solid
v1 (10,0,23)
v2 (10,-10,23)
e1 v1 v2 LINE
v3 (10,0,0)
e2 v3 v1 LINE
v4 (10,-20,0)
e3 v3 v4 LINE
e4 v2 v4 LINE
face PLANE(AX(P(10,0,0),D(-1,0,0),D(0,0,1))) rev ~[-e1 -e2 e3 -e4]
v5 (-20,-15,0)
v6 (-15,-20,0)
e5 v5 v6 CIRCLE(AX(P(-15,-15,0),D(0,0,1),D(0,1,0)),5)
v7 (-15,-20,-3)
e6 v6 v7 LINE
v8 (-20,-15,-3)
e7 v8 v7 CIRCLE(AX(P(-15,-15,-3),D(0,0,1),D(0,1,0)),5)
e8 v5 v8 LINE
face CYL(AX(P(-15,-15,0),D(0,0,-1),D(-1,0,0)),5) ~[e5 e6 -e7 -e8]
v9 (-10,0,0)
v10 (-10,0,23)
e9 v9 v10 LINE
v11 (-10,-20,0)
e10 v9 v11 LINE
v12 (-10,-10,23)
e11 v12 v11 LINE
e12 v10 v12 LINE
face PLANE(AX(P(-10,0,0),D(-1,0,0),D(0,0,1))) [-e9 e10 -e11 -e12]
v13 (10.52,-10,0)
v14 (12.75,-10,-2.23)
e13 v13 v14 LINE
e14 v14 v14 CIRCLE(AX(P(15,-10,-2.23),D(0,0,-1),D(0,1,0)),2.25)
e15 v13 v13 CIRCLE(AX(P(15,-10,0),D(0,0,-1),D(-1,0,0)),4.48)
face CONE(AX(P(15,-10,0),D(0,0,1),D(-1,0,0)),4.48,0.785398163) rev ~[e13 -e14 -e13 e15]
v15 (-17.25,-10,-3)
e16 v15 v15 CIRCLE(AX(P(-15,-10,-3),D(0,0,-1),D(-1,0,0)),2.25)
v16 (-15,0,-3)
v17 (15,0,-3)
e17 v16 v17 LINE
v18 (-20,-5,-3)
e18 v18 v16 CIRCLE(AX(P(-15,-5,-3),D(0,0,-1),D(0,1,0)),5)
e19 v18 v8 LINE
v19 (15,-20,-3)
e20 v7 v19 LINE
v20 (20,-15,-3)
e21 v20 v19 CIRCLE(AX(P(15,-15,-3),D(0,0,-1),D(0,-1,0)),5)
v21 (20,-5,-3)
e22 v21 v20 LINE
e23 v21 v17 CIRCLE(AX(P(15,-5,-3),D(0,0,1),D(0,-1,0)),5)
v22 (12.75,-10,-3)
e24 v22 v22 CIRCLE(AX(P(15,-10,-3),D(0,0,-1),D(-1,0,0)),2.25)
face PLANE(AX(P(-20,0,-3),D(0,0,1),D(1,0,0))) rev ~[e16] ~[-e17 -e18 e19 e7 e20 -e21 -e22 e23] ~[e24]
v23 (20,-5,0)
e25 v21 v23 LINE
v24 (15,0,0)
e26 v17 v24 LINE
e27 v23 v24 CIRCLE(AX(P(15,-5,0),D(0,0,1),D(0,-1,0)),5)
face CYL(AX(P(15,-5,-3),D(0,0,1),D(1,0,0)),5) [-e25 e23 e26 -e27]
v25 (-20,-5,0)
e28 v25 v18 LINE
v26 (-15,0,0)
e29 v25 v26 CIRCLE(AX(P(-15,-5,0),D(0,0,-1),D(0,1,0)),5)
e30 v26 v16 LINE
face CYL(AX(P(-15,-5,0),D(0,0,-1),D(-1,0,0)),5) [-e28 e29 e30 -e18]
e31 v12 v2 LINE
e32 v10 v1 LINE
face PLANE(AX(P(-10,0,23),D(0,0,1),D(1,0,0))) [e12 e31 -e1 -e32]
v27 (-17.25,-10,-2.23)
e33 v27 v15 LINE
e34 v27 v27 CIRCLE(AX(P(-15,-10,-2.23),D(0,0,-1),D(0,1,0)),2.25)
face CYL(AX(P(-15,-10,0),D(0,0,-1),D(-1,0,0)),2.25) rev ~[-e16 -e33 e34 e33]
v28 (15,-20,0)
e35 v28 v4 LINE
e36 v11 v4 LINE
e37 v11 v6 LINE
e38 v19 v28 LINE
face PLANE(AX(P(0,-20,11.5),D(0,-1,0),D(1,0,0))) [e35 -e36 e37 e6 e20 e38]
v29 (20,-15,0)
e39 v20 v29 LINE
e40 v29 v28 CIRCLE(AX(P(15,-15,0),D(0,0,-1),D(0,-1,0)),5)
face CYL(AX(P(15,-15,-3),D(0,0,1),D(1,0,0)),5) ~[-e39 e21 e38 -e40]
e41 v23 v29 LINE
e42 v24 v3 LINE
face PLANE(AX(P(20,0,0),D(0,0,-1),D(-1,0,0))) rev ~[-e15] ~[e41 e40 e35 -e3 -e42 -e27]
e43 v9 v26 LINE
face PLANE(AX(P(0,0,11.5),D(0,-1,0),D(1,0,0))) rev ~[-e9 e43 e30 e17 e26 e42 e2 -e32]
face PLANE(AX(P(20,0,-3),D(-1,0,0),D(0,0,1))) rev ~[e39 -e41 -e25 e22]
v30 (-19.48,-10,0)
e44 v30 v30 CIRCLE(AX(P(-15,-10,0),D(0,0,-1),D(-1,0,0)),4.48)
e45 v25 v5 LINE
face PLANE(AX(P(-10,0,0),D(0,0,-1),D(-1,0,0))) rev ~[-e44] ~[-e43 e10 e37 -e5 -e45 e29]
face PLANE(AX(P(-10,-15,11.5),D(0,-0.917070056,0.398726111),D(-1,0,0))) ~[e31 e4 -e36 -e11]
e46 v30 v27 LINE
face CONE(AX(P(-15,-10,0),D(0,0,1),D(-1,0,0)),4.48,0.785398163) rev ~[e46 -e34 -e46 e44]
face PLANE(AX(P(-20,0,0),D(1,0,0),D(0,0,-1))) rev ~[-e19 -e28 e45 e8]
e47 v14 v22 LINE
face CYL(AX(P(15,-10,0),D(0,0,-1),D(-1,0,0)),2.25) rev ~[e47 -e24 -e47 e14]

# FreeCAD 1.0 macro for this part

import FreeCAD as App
import Part
import Sketcher
from FreeCAD import Vector
Q = App.Units.Quantity


def edges_at(feature, points):
    """Names of the edges that pass closest to the given points."""
    edges = feature.Shape.Edges
    near = lambda p: min(range(len(edges)), key=lambda i: edges[i].distToShape(Part.Vertex(*p))[0])
    return sorted({f"Edge{near(p) + 1}" for p in points})


def add_polygon(sketch, points):
    """Adds a closed chain of lines whose ends are joined by coincident constraints."""
    first, n = sketch.GeometryCount, len(points)
    for a, b in zip(points, points[1:] + points[:1]):
        sketch.addGeometry(Part.LineSegment(App.Vector(*a, 0), App.Vector(*b, 0)), False)
    for i in range(n):
        sketch.addConstraint(Sketcher.Constraint("Coincident", first + i, 2, first + (i + 1) % n, 1))

doc = App.newDocument("Part")
body = doc.addObject("PartDesign::Body", "Body")

# Sketch on XZ plane
sketch1 = body.newObject("Sketcher::SketchObject", "Sketch")
sketch1.AttachmentSupport = (doc.getObject("XZ_Plane"), [""])
sketch1.MapMode = "FlatFace"
add_polygon(sketch1, [(-10, 23), (-10, 0), (-20, 0), (-20, -3), (20, -3), (20, 0), (10, 0), (10, 23)])  # lines 0-7
sketch1.addConstraint(Sketcher.Constraint("Vertical", 0))
sketch1.addConstraint(Sketcher.Constraint("Horizontal", 1))
sketch1.addConstraint(Sketcher.Constraint("Vertical", 2))
sketch1.addConstraint(Sketcher.Constraint("Horizontal", 3))
sketch1.addConstraint(Sketcher.Constraint("Vertical", 4))
sketch1.addConstraint(Sketcher.Constraint("Horizontal", 5))
sketch1.addConstraint(Sketcher.Constraint("Vertical", 6))
sketch1.addConstraint(Sketcher.Constraint("Horizontal", 7))
sketch1.addConstraint(Sketcher.Constraint("Symmetric", 1, 2, 4, 2, -1, 1))
sketch1.addConstraint(Sketcher.Constraint("Symmetric", 0, 2, 5, 2, -2))
sketch1.addConstraint(Sketcher.Constraint("DistanceX", 1, 2, 1, 1, Q("10 mm")))
sketch1.addConstraint(Sketcher.Constraint("DistanceX", 3, 1, 3, 2, Q("40 mm")))
sketch1.addConstraint(Sketcher.Constraint("DistanceY", 0, 2, 0, 1, Q("23 mm")))
sketch1.addConstraint(Sketcher.Constraint("DistanceY", 2, 2, 2, 1, Q("3 mm")))
pad1 = body.newObject("PartDesign::Pad", "Pad")
pad1.Profile = sketch1
pad1.Length = 20
doc.recompute()

chamfer = body.newObject("PartDesign::Chamfer", "Chamfer")
chamfer.Base = (pad1, edges_at(pad1, [(0, -20, 23)]))
chamfer.ChamferType = "Two distances"
chamfer.Size = 10
chamfer.Size2 = 23

# Sketch on XY plane
sketch2 = body.newObject("Sketcher::SketchObject", "Sketch001")
sketch2.AttachmentSupport = (doc.getObject("XY_Plane"), [""])
sketch2.MapMode = "FlatFace"
sketch2.addGeometry(Part.Circle(Vector(-15, -10, 0), Vector(0, 0, 1), 2.2), False)
sketch2.addGeometry(Part.Circle(Vector(15, -10, 0), Vector(0, 0, 1), 2.2), False)
sketch2.addConstraint(Sketcher.Constraint("Equal", 0, 1))
sketch2.addConstraint(Sketcher.Constraint("Symmetric", 0, 3, 1, 3, -2))
sketch2.addConstraint(Sketcher.Constraint("Diameter", 0, Q("4.5 mm")))
sketch2.addConstraint(Sketcher.Constraint("DistanceX", 0, 3, -1, 1, Q("15 mm")))
sketch2.addConstraint(Sketcher.Constraint("DistanceY", 0, 3, -1, 1, Q("10 mm")))
doc.recompute()
hole = body.newObject("PartDesign::Hole", "Hole")
hole.Profile = sketch2
hole.ThreadType = "None"
hole.Diameter = 4.5
hole.DepthType = "Dimension"
hole.Depth = 12
hole.DrillPoint = "Angled"
hole.DrillPointAngle = 118
hole.HoleCutType = "Countersink"
hole.HoleCutDiameter = 8.96
hole.HoleCutCountersinkAngle = 90
doc.recompute()

fillet = body.newObject("PartDesign::Fillet", "Fillet")
fillet.Base = (hole, edges_at(hole, [
    (-20, -20, -1.5),
    (20, -20, -1.5),
    (-20, 0, -1.5),
    (20, 0, -1.5),
]))
fillet.Radius = 5

doc.recompute()
